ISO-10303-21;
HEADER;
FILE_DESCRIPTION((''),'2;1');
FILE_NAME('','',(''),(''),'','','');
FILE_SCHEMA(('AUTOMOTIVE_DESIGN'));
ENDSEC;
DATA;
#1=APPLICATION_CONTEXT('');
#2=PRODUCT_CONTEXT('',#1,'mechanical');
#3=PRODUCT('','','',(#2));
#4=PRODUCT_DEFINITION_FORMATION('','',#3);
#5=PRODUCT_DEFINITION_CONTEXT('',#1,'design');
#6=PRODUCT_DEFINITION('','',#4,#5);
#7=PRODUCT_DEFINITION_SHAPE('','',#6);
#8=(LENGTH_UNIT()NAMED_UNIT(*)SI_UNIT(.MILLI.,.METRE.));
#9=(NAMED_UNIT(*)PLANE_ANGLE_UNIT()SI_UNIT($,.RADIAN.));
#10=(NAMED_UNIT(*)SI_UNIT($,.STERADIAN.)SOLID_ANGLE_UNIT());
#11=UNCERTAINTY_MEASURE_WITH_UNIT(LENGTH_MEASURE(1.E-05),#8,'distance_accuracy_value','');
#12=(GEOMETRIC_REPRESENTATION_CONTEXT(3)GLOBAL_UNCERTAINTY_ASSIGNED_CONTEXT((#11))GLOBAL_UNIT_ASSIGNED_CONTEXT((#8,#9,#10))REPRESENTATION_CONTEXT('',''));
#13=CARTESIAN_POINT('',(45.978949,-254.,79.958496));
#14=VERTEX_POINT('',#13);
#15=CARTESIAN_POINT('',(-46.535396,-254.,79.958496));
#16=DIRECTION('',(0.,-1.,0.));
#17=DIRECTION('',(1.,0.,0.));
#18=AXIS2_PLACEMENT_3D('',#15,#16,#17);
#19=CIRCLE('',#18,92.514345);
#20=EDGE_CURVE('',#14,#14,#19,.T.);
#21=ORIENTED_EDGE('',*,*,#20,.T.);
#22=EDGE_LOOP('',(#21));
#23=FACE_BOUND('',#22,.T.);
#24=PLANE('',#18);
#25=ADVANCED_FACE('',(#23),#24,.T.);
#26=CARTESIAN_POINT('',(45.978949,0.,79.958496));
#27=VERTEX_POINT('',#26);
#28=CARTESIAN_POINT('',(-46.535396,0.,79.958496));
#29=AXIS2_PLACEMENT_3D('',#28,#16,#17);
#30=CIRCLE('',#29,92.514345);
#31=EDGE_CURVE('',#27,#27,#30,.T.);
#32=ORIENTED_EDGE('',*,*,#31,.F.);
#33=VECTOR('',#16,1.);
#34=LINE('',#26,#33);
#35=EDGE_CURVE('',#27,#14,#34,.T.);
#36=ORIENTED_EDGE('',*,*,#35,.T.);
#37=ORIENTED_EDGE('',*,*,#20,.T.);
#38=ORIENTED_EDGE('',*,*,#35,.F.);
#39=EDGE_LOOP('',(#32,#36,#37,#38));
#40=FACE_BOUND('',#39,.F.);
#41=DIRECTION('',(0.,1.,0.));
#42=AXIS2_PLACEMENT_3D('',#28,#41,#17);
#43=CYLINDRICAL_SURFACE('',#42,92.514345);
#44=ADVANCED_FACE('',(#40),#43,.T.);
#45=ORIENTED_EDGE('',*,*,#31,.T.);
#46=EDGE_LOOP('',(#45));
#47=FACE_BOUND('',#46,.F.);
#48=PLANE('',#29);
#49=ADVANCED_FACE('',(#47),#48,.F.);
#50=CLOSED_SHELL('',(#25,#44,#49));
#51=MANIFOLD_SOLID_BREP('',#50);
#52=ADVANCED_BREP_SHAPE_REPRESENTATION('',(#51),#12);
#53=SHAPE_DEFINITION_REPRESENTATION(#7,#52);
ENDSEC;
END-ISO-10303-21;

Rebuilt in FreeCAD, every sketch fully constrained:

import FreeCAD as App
import Part
import Sketcher
from FreeCAD import Vector
Q = App.Units.Quantity

doc = App.newDocument("Part")
params = doc.addObject("Spreadsheet::Sheet", "Params")
for row, (alias, value) in enumerate([
    ("pad1_length", "10 in"),
    ("pad2_length", "10 in"),
], start=1):
    params.set(f"A{row}", alias)
    params.set(f"B{row}", "=" + value)
    params.setAlias(f"B{row}", alias)

body = doc.addObject("PartDesign::Body", "Body")

sketch1 = body.newObject("Sketcher::SketchObject", "Sketch")
sketch1.AttachmentSupport = (doc.getObject("XZ_Plane"), [""])
sketch1.MapMode = "FlatFace"
sketch1.addGeometry(Part.Circle(Vector(-47, 80, 0), Vector(0, 0, 1), 93), False)
sketch1.addConstraint([
    Sketcher.Constraint("Diameter", 0, Q("185.02869 mm")),
    Sketcher.Constraint("DistanceX", 0, 3, -1, 1, Q("46.535396 mm")),
    Sketcher.Constraint("DistanceY", -1, 1, 0, 3, Q("79.958496 mm")),
])
pad1 = body.newObject("PartDesign::Pad", "Pad")
pad1.Profile = sketch1
pad1.setExpression("Length", "Params.pad1_length")

sketch2 = body.newObject("Sketcher::SketchObject", "Sketch001")
sketch2.AttachmentSupport = (doc.getObject("XZ_Plane"), [""])
sketch2.MapMode = "FlatFace"
sketch2.addGeometry(Part.Circle(Vector(-47, 80, 0), Vector(0, 0, 1), 17), False)
sketch2.addConstraint([
    Sketcher.Constraint("Diameter", 0, Q("33.11182 mm")),
    Sketcher.Constraint("DistanceX", 0, 3, -1, 1, Q("46.535396 mm")),
    Sketcher.Constraint("DistanceY", -1, 1, 0, 3, Q("79.958496 mm")),
])
pad2 = body.newObject("PartDesign::Pad", "Pad001")
pad2.Profile = sketch2
pad2.setExpression("Length", "Params.pad2_length")

doc.recompute()
